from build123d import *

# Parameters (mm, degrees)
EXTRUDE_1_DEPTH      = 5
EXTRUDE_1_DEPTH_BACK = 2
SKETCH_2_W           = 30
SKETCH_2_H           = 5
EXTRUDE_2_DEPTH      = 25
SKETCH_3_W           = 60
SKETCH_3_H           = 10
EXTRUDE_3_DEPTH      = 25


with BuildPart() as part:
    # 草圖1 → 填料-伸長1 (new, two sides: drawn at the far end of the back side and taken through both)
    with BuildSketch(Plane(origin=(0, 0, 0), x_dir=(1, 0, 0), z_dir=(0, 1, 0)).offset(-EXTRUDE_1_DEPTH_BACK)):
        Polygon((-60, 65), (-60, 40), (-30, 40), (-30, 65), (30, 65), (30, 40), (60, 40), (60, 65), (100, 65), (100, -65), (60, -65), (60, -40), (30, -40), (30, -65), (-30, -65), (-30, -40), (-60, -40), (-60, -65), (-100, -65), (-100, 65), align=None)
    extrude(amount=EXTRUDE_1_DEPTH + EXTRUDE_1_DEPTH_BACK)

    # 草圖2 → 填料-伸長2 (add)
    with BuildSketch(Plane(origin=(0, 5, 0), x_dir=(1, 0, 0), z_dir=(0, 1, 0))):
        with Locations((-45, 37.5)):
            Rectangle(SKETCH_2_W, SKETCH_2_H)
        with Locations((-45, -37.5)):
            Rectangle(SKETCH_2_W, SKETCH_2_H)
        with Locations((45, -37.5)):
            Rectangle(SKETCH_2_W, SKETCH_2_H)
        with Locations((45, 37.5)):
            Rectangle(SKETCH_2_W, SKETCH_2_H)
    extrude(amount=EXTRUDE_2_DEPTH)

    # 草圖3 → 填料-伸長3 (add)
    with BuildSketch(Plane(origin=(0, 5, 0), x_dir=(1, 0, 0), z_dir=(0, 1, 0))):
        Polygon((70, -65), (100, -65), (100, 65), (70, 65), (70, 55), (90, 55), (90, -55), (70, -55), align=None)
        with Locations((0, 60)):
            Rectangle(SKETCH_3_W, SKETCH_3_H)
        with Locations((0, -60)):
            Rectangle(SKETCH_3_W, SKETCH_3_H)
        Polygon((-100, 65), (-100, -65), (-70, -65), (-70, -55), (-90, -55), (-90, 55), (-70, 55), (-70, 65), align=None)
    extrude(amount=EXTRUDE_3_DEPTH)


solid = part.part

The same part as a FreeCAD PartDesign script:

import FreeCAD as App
import Part
import Sketcher

doc = App.newDocument("Part")
body = doc.addObject("PartDesign::Body", "Body")

# Sketch on XZ plane
sketch1 = doc.addObject("Sketcher::SketchObject", "Sketch")
body.addObject(sketch1)
sketch1.AttachmentSupport = (doc.XZ_Plane, [""])
sketch1.MapMode = "FlatFace"
sketch1.addGeometry(Part.LineSegment(App.Vector(-60, -40, 0), App.Vector(-60, -65, 0)), False)
sketch1.addGeometry(Part.LineSegment(App.Vector(-60, -65, 0), App.Vector(-100, -65, 0)), False)
sketch1.addGeometry(Part.LineSegment(App.Vector(-100, -65, 0), App.Vector(-100, 65, 0)), False)
sketch1.addGeometry(Part.LineSegment(App.Vector(-100, 65, 0), App.Vector(-60, 65, 0)), False)
sketch1.addGeometry(Part.LineSegment(App.Vector(-60, 65, 0), App.Vector(-60, 40, 0)), False)
sketch1.addGeometry(Part.LineSegment(App.Vector(-60, 40, 0), App.Vector(-30, 40, 0)), False)
sketch1.addGeometry(Part.LineSegment(App.Vector(-30, 40, 0), App.Vector(-30, 65, 0)), False)
sketch1.addGeometry(Part.LineSegment(App.Vector(-30, 65, 0), App.Vector(30, 65, 0)), False)
sketch1.addGeometry(Part.LineSegment(App.Vector(30, 65, 0), App.Vector(30, 40, 0)), False)
sketch1.addGeometry(Part.LineSegment(App.Vector(30, 40, 0), App.Vector(60, 40, 0)), False)
sketch1.addGeometry(Part.LineSegment(App.Vector(60, 40, 0), App.Vector(60, 65, 0)), False)
sketch1.addGeometry(Part.LineSegment(App.Vector(60, 65, 0), App.Vector(100, 65, 0)), False)
sketch1.addGeometry(Part.LineSegment(App.Vector(100, 65, 0), App.Vector(100, -65, 0)), False)
sketch1.addGeometry(Part.LineSegment(App.Vector(100, -65, 0), App.Vector(60, -65, 0)), False)
sketch1.addGeometry(Part.LineSegment(App.Vector(60, -65, 0), App.Vector(60, -40, 0)), False)
sketch1.addGeometry(Part.LineSegment(App.Vector(60, -40, 0), App.Vector(30, -40, 0)), False)
sketch1.addGeometry(Part.LineSegment(App.Vector(30, -40, 0), App.Vector(30, -65, 0)), False)
sketch1.addGeometry(Part.LineSegment(App.Vector(30, -65, 0), App.Vector(-30, -65, 0)), False)
sketch1.addGeometry(Part.LineSegment(App.Vector(-30, -65, 0), App.Vector(-30, -40, 0)), False)
sketch1.addGeometry(Part.LineSegment(App.Vector(-30, -40, 0), App.Vector(-60, -40, 0)), False)
sketch1.addConstraint(Sketcher.Constraint("Coincident", 0, 2, 1, 1))
sketch1.addConstraint(Sketcher.Constraint("Coincident", 1, 2, 2, 1))
sketch1.addConstraint(Sketcher.Constraint("Coincident", 2, 2, 3, 1))
sketch1.addConstraint(Sketcher.Constraint("Coincident", 3, 2, 4, 1))
sketch1.addConstraint(Sketcher.Constraint("Coincident", 4, 2, 5, 1))
sketch1.addConstraint(Sketcher.Constraint("Coincident", 5, 2, 6, 1))
sketch1.addConstraint(Sketcher.Constraint("Coincident", 6, 2, 7, 1))
sketch1.addConstraint(Sketcher.Constraint("Coincident", 7, 2, 8, 1))
sketch1.addConstraint(Sketcher.Constraint("Coincident", 8, 2, 9, 1))
sketch1.addConstraint(Sketcher.Constraint("Coincident", 9, 2, 10, 1))
sketch1.addConstraint(Sketcher.Constraint("Coincident", 10, 2, 11, 1))
sketch1.addConstraint(Sketcher.Constraint("Coincident", 11, 2, 12, 1))
sketch1.addConstraint(Sketcher.Constraint("Coincident", 12, 2, 13, 1))
sketch1.addConstraint(Sketcher.Constraint("Coincident", 13, 2, 14, 1))
sketch1.addConstraint(Sketcher.Constraint("Coincident", 14, 2, 15, 1))
sketch1.addConstraint(Sketcher.Constraint("Coincident", 15, 2, 16, 1))
sketch1.addConstraint(Sketcher.Constraint("Coincident", 16, 2, 17, 1))
sketch1.addConstraint(Sketcher.Constraint("Coincident", 17, 2, 18, 1))
sketch1.addConstraint(Sketcher.Constraint("Coincident", 18, 2, 19, 1))
sketch1.addConstraint(Sketcher.Constraint("Coincident", 19, 2, 0, 1))
sketch1.addConstraint(Sketcher.Constraint("Vertical", 0))
sketch1.addConstraint(Sketcher.Constraint("Horizontal", 1))
sketch1.addConstraint(Sketcher.Constraint("Vertical", 2))
sketch1.addConstraint(Sketcher.Constraint("Horizontal", 3))
sketch1.addConstraint(Sketcher.Constraint("Vertical", 4))
sketch1.addConstraint(Sketcher.Constraint("Horizontal", 5))
sketch1.addConstraint(Sketcher.Constraint("Vertical", 6))
sketch1.addConstraint(Sketcher.Constraint("Horizontal", 7))
sketch1.addConstraint(Sketcher.Constraint("Vertical", 8))
sketch1.addConstraint(Sketcher.Constraint("Horizontal", 9))
sketch1.addConstraint(Sketcher.Constraint("Vertical", 10))
sketch1.addConstraint(Sketcher.Constraint("Horizontal", 11))
sketch1.addConstraint(Sketcher.Constraint("Vertical", 12))
sketch1.addConstraint(Sketcher.Constraint("Horizontal", 13))
sketch1.addConstraint(Sketcher.Constraint("Vertical", 14))
sketch1.addConstraint(Sketcher.Constraint("Horizontal", 15))
sketch1.addConstraint(Sketcher.Constraint("Vertical", 16))
sketch1.addConstraint(Sketcher.Constraint("Horizontal", 17))
sketch1.addConstraint(Sketcher.Constraint("Vertical", 18))
sketch1.addConstraint(Sketcher.Constraint("Horizontal", 19))
sketch1.addConstraint(Sketcher.Constraint("Symmetric", 0, 2, 10, 2, -1, 1))
sketch1.addConstraint(Sketcher.Constraint("Symmetric", 2, 2, 12, 2, -1, 1))
sketch1.addConstraint(Sketcher.Constraint("Symmetric", 4, 2, 14, 2, -1, 1))
sketch1.addConstraint(Sketcher.Constraint("Symmetric", 6, 2, 16, 2, -1, 1))
sketch1.addConstraint(Sketcher.Constraint("Symmetric", 8, 2, 18, 2, -1, 1))
sketch1.addConstraint(Sketcher.Constraint("Symmetric", 5, 2, 8, 2, -2))
sketch1.addConstraint(Sketcher.Constraint("Symmetric", 3, 2, 10, 2, -2))
sketch1.addConstraint(Sketcher.Constraint("Horizontal", 3, 2, 6, 2))
sketch1.addConstraint(Sketcher.Constraint("DistanceX", 1, 2, 1, 1, 40.0))
sketch1.addConstraint(Sketcher.Constraint("DistanceX", 5, 1, 5, 2, 30.0))
sketch1.addConstraint(Sketcher.Constraint("DistanceX", 7, 1, 7, 2, 60.0))
sketch1.addConstraint(Sketcher.Constraint("DistanceY", 0, 2, 0, 1, 25.0))
sketch1.addConstraint(Sketcher.Constraint("DistanceY", 2, 1, 2, 2, 130.0))
pad1 = doc.addObject("PartDesign::Pad", "Pad")
body.addObject(pad1)
pad1.Profile = sketch1
pad1.Type = "TwoLengths"
pad1.Length = 5
pad1.Length2 = 2
pad1.Reversed = True

# Sketch on XZ plane
sketch2 = doc.addObject("Sketcher::SketchObject", "Sketch001")
body.addObject(sketch2)
sketch2.AttachmentSupport = (doc.XZ_Plane, [""])
sketch2.MapMode = "FlatFace"
sketch2.AttachmentOffset = App.Placement(App.Vector(0, 0, -5), App.Rotation())
sketch2.addGeometry(Part.LineSegment(App.Vector(-60, -40, 0), App.Vector(-60, -35, 0)), False)
sketch2.addGeometry(Part.LineSegment(App.Vector(-60, -35, 0), App.Vector(-30, -35, 0)), False)
sketch2.addGeometry(Part.LineSegment(App.Vector(-30, -35, 0), App.Vector(-30, -40, 0)), False)
sketch2.addGeometry(Part.LineSegment(App.Vector(-30, -40, 0), App.Vector(-60, -40, 0)), False)
sketch2.addGeometry(Part.LineSegment(App.Vector(-60, 35, 0), App.Vector(-60, 40, 0)), False)
sketch2.addGeometry(Part.LineSegment(App.Vector(-60, 40, 0), App.Vector(-30, 40, 0)), False)
sketch2.addGeometry(Part.LineSegment(App.Vector(-30, 40, 0), App.Vector(-30, 35, 0)), False)
sketch2.addGeometry(Part.LineSegment(App.Vector(-30, 35, 0), App.Vector(-60, 35, 0)), False)
sketch2.addGeometry(Part.LineSegment(App.Vector(30, 35, 0), App.Vector(30, 40, 0)), False)
sketch2.addGeometry(Part.LineSegment(App.Vector(30, 40, 0), App.Vector(60, 40, 0)), False)
sketch2.addGeometry(Part.LineSegment(App.Vector(60, 40, 0), App.Vector(60, 35, 0)), False)
sketch2.addGeometry(Part.LineSegment(App.Vector(60, 35, 0), App.Vector(30, 35, 0)), False)
sketch2.addGeometry(Part.LineSegment(App.Vector(30, -40, 0), App.Vector(30, -35, 0)), False)
sketch2.addGeometry(Part.LineSegment(App.Vector(30, -35, 0), App.Vector(60, -35, 0)), False)
sketch2.addGeometry(Part.LineSegment(App.Vector(60, -35, 0), App.Vector(60, -40, 0)), False)
sketch2.addGeometry(Part.LineSegment(App.Vector(60, -40, 0), App.Vector(30, -40, 0)), False)
sketch2.addConstraint(Sketcher.Constraint("Coincident", 0, 2, 1, 1))
sketch2.addConstraint(Sketcher.Constraint("Coincident", 1, 2, 2, 1))
sketch2.addConstraint(Sketcher.Constraint("Coincident", 2, 2, 3, 1))
sketch2.addConstraint(Sketcher.Constraint("Coincident", 3, 2, 0, 1))
sketch2.addConstraint(Sketcher.Constraint("Coincident", 4, 2, 5, 1))
sketch2.addConstraint(Sketcher.Constraint("Coincident", 5, 2, 6, 1))
sketch2.addConstraint(Sketcher.Constraint("Coincident", 6, 2, 7, 1))
sketch2.addConstraint(Sketcher.Constraint("Coincident", 7, 2, 4, 1))
sketch2.addConstraint(Sketcher.Constraint("Coincident", 8, 2, 9, 1))
sketch2.addConstraint(Sketcher.Constraint("Coincident", 9, 2, 10, 1))
sketch2.addConstraint(Sketcher.Constraint("Coincident", 10, 2, 11, 1))
sketch2.addConstraint(Sketcher.Constraint("Coincident", 11, 2, 8, 1))
sketch2.addConstraint(Sketcher.Constraint("Coincident", 12, 2, 13, 1))
sketch2.addConstraint(Sketcher.Constraint("Coincident", 13, 2, 14, 1))
sketch2.addConstraint(Sketcher.Constraint("Coincident", 14, 2, 15, 1))
sketch2.addConstraint(Sketcher.Constraint("Coincident", 15, 2, 12, 1))
sketch2.addConstraint(Sketcher.Constraint("Vertical", 0))
sketch2.addConstraint(Sketcher.Constraint("Horizontal", 1))
sketch2.addConstraint(Sketcher.Constraint("Vertical", 2))
sketch2.addConstraint(Sketcher.Constraint("Horizontal", 3))
sketch2.addConstraint(Sketcher.Constraint("Vertical", 4))
sketch2.addConstraint(Sketcher.Constraint("Horizontal", 5))
sketch2.addConstraint(Sketcher.Constraint("Vertical", 6))
sketch2.addConstraint(Sketcher.Constraint("Horizontal", 7))
sketch2.addConstraint(Sketcher.Constraint("Vertical", 8))
sketch2.addConstraint(Sketcher.Constraint("Horizontal", 9))
sketch2.addConstraint(Sketcher.Constraint("Vertical", 10))
sketch2.addConstraint(Sketcher.Constraint("Horizontal", 11))
sketch2.addConstraint(Sketcher.Constraint("Vertical", 12))
sketch2.addConstraint(Sketcher.Constraint("Horizontal", 13))
sketch2.addConstraint(Sketcher.Constraint("Vertical", 14))
sketch2.addConstraint(Sketcher.Constraint("Horizontal", 15))
sketch2.addConstraint(Sketcher.Constraint("Symmetric", 2, 2, 8, 2, -1, 1))
sketch2.addConstraint(Sketcher.Constraint("Symmetric", 0, 2, 10, 2, -1, 1))
sketch2.addConstraint(Sketcher.Constraint("Symmetric", 6, 2, 12, 2, -1, 1))
sketch2.addConstraint(Sketcher.Constraint("Symmetric", 4, 2, 14, 2, -1, 1))
sketch2.addConstraint(Sketcher.Constraint("Symmetric", 5, 2, 8, 2, -2))
sketch2.addConstraint(Sketcher.Constraint("Symmetric", 7, 2, 10, 2, -2))
sketch2.addConstraint(Sketcher.Constraint("DistanceX", 1, 1, 1, 2, 30.0))
sketch2.addConstraint(Sketcher.Constraint("DistanceY", 0, 1, 0, 2, 5.0))
sketch2.addConstraint(Sketcher.Constraint("DistanceX", 0, 2, -1, 1, 60.0))
sketch2.addConstraint(Sketcher.Constraint("DistanceY", 0, 2, -1, 1, 35.0))
pad2 = doc.addObject("PartDesign::Pad", "Pad001")
body.addObject(pad2)
pad2.Profile = sketch2
pad2.Length = 25
pad2.Reversed = True

# Sketch on XZ plane
sketch3 = doc.addObject("Sketcher::SketchObject", "Sketch002")
body.addObject(sketch3)
sketch3.AttachmentSupport = (doc.XZ_Plane, [""])
sketch3.MapMode = "FlatFace"
sketch3.AttachmentOffset = App.Placement(App.Vector(0, 0, -5), App.Rotation())
sketch3.addGeometry(Part.LineSegment(App.Vector(70, 65, 0), App.Vector(100, 65, 0)), False)
sketch3.addGeometry(Part.LineSegment(App.Vector(100, 65, 0), App.Vector(100, -65, 0)), False)
sketch3.addGeometry(Part.LineSegment(App.Vector(100, -65, 0), App.Vector(70, -65, 0)), False)
sketch3.addGeometry(Part.LineSegment(App.Vector(70, -65, 0), App.Vector(70, -55, 0)), False)
sketch3.addGeometry(Part.LineSegment(App.Vector(70, -55, 0), App.Vector(90, -55, 0)), False)
sketch3.addGeometry(Part.LineSegment(App.Vector(90, -55, 0), App.Vector(90, 55, 0)), False)
sketch3.addGeometry(Part.LineSegment(App.Vector(90, 55, 0), App.Vector(70, 55, 0)), False)
sketch3.addGeometry(Part.LineSegment(App.Vector(70, 55, 0), App.Vector(70, 65, 0)), False)
sketch3.addGeometry(Part.LineSegment(App.Vector(-30, -65, 0), App.Vector(-30, -55, 0)), False)
sketch3.addGeometry(Part.LineSegment(App.Vector(-30, -55, 0), App.Vector(30, -55, 0)), False)
sketch3.addGeometry(Part.LineSegment(App.Vector(30, -55, 0), App.Vector(30, -65, 0)), False)
sketch3.addGeometry(Part.LineSegment(App.Vector(30, -65, 0), App.Vector(-30, -65, 0)), False)
sketch3.addGeometry(Part.LineSegment(App.Vector(-30, 55, 0), App.Vector(-30, 65, 0)), False)
sketch3.addGeometry(Part.LineSegment(App.Vector(-30, 65, 0), App.Vector(30, 65, 0)), False)
sketch3.addGeometry(Part.LineSegment(App.Vector(30, 65, 0), App.Vector(30, 55, 0)), False)
sketch3.addGeometry(Part.LineSegment(App.Vector(30, 55, 0), App.Vector(-30, 55, 0)), False)
sketch3.addGeometry(Part.LineSegment(App.Vector(-100, -65, 0), App.Vector(-100, 65, 0)), False)
sketch3.addGeometry(Part.LineSegment(App.Vector(-100, 65, 0), App.Vector(-70, 65, 0)), False)
sketch3.addGeometry(Part.LineSegment(App.Vector(-70, 65, 0), App.Vector(-70, 55, 0)), False)
sketch3.addGeometry(Part.LineSegment(App.Vector(-70, 55, 0), App.Vector(-90, 55, 0)), False)
sketch3.addGeometry(Part.LineSegment(App.Vector(-90, 55, 0), App.Vector(-90, -55, 0)), False)
sketch3.addGeometry(Part.LineSegment(App.Vector(-90, -55, 0), App.Vector(-70, -55, 0)), False)
sketch3.addGeometry(Part.LineSegment(App.Vector(-70, -55, 0), App.Vector(-70, -65, 0)), False)
sketch3.addGeometry(Part.LineSegment(App.Vector(-70, -65, 0), App.Vector(-100, -65, 0)), False)
sketch3.addConstraint(Sketcher.Constraint("Coincident", 0, 2, 1, 1))
sketch3.addConstraint(Sketcher.Constraint("Coincident", 1, 2, 2, 1))
sketch3.addConstraint(Sketcher.Constraint("Coincident", 2, 2, 3, 1))
sketch3.addConstraint(Sketcher.Constraint("Coincident", 3, 2, 4, 1))
sketch3.addConstraint(Sketcher.Constraint("Coincident", 4, 2, 5, 1))
sketch3.addConstraint(Sketcher.Constraint("Coincident", 5, 2, 6, 1))
sketch3.addConstraint(Sketcher.Constraint("Coincident", 6, 2, 7, 1))
sketch3.addConstraint(Sketcher.Constraint("Coincident", 7, 2, 0, 1))
sketch3.addConstraint(Sketcher.Constraint("Coincident", 8, 2, 9, 1))
sketch3.addConstraint(Sketcher.Constraint("Coincident", 9, 2, 10, 1))
sketch3.addConstraint(Sketcher.Constraint("Coincident", 10, 2, 11, 1))
sketch3.addConstraint(Sketcher.Constraint("Coincident", 11, 2, 8, 1))
sketch3.addConstraint(Sketcher.Constraint("Coincident", 12, 2, 13, 1))
sketch3.addConstraint(Sketcher.Constraint("Coincident", 13, 2, 14, 1))
sketch3.addConstraint(Sketcher.Constraint("Coincident", 14, 2, 15, 1))
sketch3.addConstraint(Sketcher.Constraint("Coincident", 15, 2, 12, 1))
sketch3.addConstraint(Sketcher.Constraint("Coincident", 16, 2, 17, 1))
sketch3.addConstraint(Sketcher.Constraint("Coincident", 17, 2, 18, 1))
sketch3.addConstraint(Sketcher.Constraint("Coincident", 18, 2, 19, 1))
sketch3.addConstraint(Sketcher.Constraint("Coincident", 19, 2, 20, 1))
sketch3.addConstraint(Sketcher.Constraint("Coincident", 20, 2, 21, 1))
sketch3.addConstraint(Sketcher.Constraint("Coincident", 21, 2, 22, 1))
sketch3.addConstraint(Sketcher.Constraint("Coincident", 22, 2, 23, 1))
sketch3.addConstraint(Sketcher.Constraint("Coincident", 23, 2, 16, 1))
sketch3.addConstraint(Sketcher.Constraint("Horizontal", 0))
sketch3.addConstraint(Sketcher.Constraint("Vertical", 1))
sketch3.addConstraint(Sketcher.Constraint("Horizontal", 2))
sketch3.addConstraint(Sketcher.Constraint("Vertical", 3))
sketch3.addConstraint(Sketcher.Constraint("Horizontal", 4))
sketch3.addConstraint(Sketcher.Constraint("Vertical", 5))
sketch3.addConstraint(Sketcher.Constraint("Horizontal", 6))
sketch3.addConstraint(Sketcher.Constraint("Vertical", 7))
sketch3.addConstraint(Sketcher.Constraint("Vertical", 8))
sketch3.addConstraint(Sketcher.Constraint("Horizontal", 9))
sketch3.addConstraint(Sketcher.Constraint("Vertical", 10))
sketch3.addConstraint(Sketcher.Constraint("Horizontal", 11))
sketch3.addConstraint(Sketcher.Constraint("Vertical", 12))
sketch3.addConstraint(Sketcher.Constraint("Horizontal", 13))
sketch3.addConstraint(Sketcher.Constraint("Vertical", 14))
sketch3.addConstraint(Sketcher.Constraint("Horizontal", 15))
sketch3.addConstraint(Sketcher.Constraint("Vertical", 16))
sketch3.addConstraint(Sketcher.Constraint("Horizontal", 17))
sketch3.addConstraint(Sketcher.Constraint("Vertical", 18))
sketch3.addConstraint(Sketcher.Constraint("Horizontal", 19))
sketch3.addConstraint(Sketcher.Constraint("Vertical", 20))
sketch3.addConstraint(Sketcher.Constraint("Horizontal", 21))
sketch3.addConstraint(Sketcher.Constraint("Vertical", 22))
sketch3.addConstraint(Sketcher.Constraint("Horizontal", 23))
sketch3.addConstraint(Sketcher.Constraint("Symmetric", 10, 2, 12, 2, -1, 1))
sketch3.addConstraint(Sketcher.Constraint("Symmetric", 8, 2, 14, 2, -1, 1))
sketch3.addConstraint(Sketcher.Constraint("Symmetric", 1, 2, 16, 2, -1, 1))
sketch3.addConstraint(Sketcher.Constraint("Symmetric", 3, 2, 18, 2, -1, 1))
sketch3.addConstraint(Sketcher.Constraint("Symmetric", 5, 2, 20, 2, -1, 1))
sketch3.addConstraint(Sketcher.Constraint("Symmetric", 7, 2, 22, 2, -1, 1))
sketch3.addConstraint(Sketcher.Constraint("Symmetric", 7, 2, 17, 2, -2))
sketch3.addConstraint(Sketcher.Constraint("Horizontal", 4, 2, 8, 2))
sketch3.addConstraint(Sketcher.Constraint("Horizontal", 2, 2, 10, 2))
sketch3.addConstraint(Sketcher.Constraint("Horizontal", 6, 2, 14, 2))
sketch3.addConstraint(Sketcher.Constraint("Vertical", 11, 2, 12, 2))
sketch3.addConstraint(Sketcher.Constraint("DistanceX", 0, 1, 0, 2, 30.0))
sketch3.addConstraint(Sketcher.Constraint("DistanceX", 4, 1, 4, 2, 20.0))
sketch3.addConstraint(Sketcher.Constraint("DistanceX", 9, 1, 9, 2, 60.0))
sketch3.addConstraint(Sketcher.Constraint("DistanceY", 1, 2, 1, 1, 130.0))
sketch3.addConstraint(Sketcher.Constraint("DistanceY", 3, 1, 3, 2, 10.0))
sketch3.addConstraint(Sketcher.Constraint("DistanceX", -1, 1, 0, 2, 100.0))
pad3 = doc.addObject("PartDesign::Pad", "Pad002")
body.addObject(pad3)
pad3.Profile = sketch3
pad3.Length = 25
pad3.Reversed = True

doc.recompute()
